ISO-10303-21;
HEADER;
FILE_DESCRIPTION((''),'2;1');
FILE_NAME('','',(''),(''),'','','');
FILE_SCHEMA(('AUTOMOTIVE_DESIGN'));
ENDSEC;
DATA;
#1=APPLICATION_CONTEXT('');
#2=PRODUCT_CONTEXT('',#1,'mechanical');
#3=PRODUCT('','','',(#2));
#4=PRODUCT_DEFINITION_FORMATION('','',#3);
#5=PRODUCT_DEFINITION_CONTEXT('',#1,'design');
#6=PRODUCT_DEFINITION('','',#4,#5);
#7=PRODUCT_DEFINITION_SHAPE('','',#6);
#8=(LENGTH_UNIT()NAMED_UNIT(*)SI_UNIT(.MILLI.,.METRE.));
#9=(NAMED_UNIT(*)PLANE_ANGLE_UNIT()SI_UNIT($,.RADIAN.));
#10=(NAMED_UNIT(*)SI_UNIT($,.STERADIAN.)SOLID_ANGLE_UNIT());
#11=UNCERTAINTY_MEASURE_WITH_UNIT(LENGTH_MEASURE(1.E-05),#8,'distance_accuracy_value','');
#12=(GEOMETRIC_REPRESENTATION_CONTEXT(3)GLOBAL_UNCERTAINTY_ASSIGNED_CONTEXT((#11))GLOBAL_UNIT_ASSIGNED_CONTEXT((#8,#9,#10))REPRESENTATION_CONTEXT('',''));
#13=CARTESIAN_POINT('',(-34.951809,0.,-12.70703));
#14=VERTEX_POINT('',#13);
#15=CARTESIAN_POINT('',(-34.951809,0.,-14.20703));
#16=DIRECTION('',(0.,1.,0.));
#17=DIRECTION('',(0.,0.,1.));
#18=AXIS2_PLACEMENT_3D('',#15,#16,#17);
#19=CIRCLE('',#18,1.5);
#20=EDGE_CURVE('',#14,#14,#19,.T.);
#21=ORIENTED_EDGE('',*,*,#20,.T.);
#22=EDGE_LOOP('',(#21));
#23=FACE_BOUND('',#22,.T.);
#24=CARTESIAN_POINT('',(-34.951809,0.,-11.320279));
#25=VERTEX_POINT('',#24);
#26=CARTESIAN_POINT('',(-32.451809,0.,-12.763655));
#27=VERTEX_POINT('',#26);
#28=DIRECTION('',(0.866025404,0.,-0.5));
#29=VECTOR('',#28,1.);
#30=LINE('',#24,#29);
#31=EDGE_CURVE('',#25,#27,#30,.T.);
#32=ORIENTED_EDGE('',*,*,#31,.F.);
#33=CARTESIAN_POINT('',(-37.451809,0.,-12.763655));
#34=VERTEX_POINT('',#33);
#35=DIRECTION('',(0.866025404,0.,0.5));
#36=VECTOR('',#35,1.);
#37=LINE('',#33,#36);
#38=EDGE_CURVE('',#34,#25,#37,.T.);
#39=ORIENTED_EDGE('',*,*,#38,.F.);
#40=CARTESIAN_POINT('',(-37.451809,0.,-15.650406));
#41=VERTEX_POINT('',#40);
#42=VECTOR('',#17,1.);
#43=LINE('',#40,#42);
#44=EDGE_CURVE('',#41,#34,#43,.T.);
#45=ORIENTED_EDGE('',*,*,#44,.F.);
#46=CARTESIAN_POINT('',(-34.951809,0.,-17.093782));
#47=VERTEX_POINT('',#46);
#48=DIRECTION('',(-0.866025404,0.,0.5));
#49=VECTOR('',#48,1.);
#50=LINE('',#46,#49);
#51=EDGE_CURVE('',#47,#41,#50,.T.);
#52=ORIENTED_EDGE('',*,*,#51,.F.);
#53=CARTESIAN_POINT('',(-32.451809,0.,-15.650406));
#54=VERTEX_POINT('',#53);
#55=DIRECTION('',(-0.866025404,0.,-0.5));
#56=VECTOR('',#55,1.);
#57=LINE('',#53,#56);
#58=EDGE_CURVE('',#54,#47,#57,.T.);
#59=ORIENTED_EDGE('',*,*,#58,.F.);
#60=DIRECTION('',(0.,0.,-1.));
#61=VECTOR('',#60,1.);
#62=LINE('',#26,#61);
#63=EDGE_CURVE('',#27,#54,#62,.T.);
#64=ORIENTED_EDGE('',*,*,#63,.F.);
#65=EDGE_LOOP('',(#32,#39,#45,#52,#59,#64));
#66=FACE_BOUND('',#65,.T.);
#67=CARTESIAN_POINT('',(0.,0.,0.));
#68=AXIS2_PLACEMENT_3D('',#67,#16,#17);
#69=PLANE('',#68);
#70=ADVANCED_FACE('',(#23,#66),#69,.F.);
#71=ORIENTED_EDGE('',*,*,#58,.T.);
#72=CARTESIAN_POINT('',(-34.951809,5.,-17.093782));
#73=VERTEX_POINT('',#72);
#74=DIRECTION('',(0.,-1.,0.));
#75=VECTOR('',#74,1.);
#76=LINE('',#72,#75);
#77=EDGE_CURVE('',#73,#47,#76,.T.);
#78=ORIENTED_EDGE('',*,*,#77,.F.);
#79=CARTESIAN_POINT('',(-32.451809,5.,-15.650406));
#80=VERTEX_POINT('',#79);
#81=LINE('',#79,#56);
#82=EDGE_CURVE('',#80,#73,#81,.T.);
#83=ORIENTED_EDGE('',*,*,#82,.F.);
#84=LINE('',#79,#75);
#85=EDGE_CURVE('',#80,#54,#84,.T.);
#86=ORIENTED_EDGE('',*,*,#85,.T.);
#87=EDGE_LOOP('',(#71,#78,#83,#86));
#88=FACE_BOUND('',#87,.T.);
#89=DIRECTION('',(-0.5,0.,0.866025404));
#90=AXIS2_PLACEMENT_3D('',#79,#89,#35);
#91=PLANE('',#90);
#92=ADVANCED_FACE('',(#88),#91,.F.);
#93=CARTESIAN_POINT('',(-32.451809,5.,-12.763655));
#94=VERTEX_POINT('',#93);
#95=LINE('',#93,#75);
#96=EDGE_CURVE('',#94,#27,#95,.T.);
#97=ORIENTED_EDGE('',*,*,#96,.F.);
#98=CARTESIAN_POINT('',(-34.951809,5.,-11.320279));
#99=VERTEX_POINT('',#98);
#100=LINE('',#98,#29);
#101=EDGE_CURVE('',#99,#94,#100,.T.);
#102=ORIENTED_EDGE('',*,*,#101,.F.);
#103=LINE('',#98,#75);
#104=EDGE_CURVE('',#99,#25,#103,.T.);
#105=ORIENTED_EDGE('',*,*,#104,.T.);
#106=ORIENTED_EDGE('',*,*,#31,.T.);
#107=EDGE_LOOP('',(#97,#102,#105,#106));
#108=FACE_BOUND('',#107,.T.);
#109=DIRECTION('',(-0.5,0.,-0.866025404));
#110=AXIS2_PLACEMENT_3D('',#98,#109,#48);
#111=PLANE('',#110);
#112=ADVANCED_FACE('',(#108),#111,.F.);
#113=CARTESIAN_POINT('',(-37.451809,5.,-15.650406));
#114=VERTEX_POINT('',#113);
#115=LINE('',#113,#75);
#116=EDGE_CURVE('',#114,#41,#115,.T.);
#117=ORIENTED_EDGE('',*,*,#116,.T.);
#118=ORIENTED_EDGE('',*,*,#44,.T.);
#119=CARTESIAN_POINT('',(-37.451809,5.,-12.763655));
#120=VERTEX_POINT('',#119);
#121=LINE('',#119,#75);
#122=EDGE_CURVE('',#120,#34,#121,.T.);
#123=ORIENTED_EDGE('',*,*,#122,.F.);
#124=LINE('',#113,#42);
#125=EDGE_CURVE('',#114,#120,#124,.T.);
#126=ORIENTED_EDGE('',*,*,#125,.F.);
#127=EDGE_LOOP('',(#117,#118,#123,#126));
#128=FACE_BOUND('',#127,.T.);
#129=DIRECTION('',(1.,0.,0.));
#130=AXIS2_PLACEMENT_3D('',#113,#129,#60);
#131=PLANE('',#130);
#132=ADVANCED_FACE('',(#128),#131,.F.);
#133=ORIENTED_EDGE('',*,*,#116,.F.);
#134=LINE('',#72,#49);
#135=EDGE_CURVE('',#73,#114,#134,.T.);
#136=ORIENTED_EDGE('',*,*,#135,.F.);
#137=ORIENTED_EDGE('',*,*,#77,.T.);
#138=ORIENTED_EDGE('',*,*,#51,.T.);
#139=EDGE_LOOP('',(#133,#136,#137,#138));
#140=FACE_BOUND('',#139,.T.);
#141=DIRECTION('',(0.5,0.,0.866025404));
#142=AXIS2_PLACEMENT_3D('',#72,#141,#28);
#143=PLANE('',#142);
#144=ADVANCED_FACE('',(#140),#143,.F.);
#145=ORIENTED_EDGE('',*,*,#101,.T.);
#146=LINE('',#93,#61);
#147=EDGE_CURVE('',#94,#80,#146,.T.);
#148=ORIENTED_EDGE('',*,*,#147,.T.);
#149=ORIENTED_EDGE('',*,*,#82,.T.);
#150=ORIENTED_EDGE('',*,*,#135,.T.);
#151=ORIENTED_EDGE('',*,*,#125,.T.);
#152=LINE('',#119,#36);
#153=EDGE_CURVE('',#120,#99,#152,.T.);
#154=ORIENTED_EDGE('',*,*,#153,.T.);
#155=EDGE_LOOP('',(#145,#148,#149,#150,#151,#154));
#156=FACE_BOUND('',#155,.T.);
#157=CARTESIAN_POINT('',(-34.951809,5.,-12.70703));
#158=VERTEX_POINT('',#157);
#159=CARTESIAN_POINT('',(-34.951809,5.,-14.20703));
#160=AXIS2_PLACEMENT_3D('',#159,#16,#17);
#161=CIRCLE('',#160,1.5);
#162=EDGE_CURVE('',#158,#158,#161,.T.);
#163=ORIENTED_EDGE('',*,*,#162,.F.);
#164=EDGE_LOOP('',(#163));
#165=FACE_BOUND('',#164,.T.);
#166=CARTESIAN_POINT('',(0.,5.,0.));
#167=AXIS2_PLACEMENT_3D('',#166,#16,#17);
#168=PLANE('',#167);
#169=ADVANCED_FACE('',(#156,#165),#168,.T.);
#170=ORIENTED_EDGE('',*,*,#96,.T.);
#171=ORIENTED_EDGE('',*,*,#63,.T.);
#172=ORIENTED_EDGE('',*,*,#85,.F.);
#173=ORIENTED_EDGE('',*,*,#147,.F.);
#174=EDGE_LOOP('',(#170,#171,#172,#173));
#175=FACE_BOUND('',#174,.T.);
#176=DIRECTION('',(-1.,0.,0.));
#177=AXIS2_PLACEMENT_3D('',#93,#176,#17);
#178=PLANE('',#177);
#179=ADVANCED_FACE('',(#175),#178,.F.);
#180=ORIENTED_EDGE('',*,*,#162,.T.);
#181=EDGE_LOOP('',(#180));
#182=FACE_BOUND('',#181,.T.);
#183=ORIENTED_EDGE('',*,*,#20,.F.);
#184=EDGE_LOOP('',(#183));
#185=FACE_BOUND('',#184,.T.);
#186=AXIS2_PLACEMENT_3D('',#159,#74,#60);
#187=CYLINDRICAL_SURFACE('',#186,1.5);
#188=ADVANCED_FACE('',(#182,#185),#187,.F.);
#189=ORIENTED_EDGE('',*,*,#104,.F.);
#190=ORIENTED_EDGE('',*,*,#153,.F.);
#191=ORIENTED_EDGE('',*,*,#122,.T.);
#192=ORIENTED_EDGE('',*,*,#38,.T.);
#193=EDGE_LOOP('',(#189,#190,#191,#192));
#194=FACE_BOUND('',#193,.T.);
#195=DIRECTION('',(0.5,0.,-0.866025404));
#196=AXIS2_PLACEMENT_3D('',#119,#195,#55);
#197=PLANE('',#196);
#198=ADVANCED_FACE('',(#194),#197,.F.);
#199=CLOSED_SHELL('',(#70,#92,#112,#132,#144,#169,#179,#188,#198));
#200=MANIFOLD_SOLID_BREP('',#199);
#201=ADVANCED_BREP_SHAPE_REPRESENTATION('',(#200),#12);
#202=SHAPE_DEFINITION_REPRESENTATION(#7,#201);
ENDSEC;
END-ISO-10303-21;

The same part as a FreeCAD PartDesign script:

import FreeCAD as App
import Part
import Sketcher

V = App.Vector
Q = App.Units.Quantity

doc = App.newDocument("Part")
body = doc.addObject("PartDesign::Body", "Body")

# Sketch on XZ plane
sketch1 = body.newObject("Sketcher::SketchObject", "Sketch")
sketch1.AttachmentSupport = (doc.getObject("XZ_Plane"), [""])
sketch1.MapMode = "FlatFace"
sketch1.addGeometry([
    Part.LineSegment(V(-35, -17.1, 0), V(-37.5, -15.7, 0)),  # 0
    Part.LineSegment(V(-37.5, -15.7, 0), V(-37.5, -12.8, 0)),  # 1
    Part.LineSegment(V(-37.5, -12.8, 0), V(-35, -11.3, 0)),  # 2
    Part.LineSegment(V(-35, -11.3, 0), V(-32.5, -12.8, 0)),  # 3
    Part.LineSegment(V(-32.5, -12.8, 0), V(-32.5, -15.7, 0)),  # 4
    Part.LineSegment(V(-32.5, -15.7, 0), V(-35, -17.1, 0)),  # 5
    Part.Circle(V(-35, -14.2, 0), V(0, 0, 1), 1.5),  # 6
], False)
sketch1.addConstraint([
    Sketcher.Constraint("Coincident", 0, 2, 1, 1),
    Sketcher.Constraint("Coincident", 1, 2, 2, 1),
    Sketcher.Constraint("Coincident", 2, 2, 3, 1),
    Sketcher.Constraint("Coincident", 3, 2, 4, 1),
    Sketcher.Constraint("Coincident", 4, 2, 5, 1),
    Sketcher.Constraint("Coincident", 5, 2, 0, 1),
    Sketcher.Constraint("Vertical", 1),
    Sketcher.Constraint("Vertical", 4),
    Sketcher.Constraint("Parallel", 0, 3),
    Sketcher.Constraint("Parallel", 2, 5),
    Sketcher.Constraint("Horizontal", 1, 2, 3, 2),
    Sketcher.Constraint("Horizontal", 0, 2, 4, 2),
    Sketcher.Constraint("Vertical", 6, 3, 2, 2),
    Sketcher.Constraint("Vertical", 2, 2, 5, 2),
    Sketcher.Constraint("Diameter", 6, 3.0),
    Sketcher.Constraint("Angle", 0, Q("150 deg")),
    Sketcher.Constraint("DistanceX", 1, 2, 3, 2, 5.0),
    Sketcher.Constraint("DistanceY", 1, 1, 1, 2, 2.886751),
    Sketcher.Constraint("DistanceX", 6, 3, -1, 1, 34.951809),
    Sketcher.Constraint("DistanceY", 6, 3, -1, 1, 14.20703),
    Sketcher.Constraint("DistanceY", 2, 2, -1, 1, 11.320279),
])
pad1 = body.newObject("PartDesign::Pad", "Pad")
pad1.Profile = sketch1
pad1.Length = 5
pad1.Reversed = True

doc.recompute()
